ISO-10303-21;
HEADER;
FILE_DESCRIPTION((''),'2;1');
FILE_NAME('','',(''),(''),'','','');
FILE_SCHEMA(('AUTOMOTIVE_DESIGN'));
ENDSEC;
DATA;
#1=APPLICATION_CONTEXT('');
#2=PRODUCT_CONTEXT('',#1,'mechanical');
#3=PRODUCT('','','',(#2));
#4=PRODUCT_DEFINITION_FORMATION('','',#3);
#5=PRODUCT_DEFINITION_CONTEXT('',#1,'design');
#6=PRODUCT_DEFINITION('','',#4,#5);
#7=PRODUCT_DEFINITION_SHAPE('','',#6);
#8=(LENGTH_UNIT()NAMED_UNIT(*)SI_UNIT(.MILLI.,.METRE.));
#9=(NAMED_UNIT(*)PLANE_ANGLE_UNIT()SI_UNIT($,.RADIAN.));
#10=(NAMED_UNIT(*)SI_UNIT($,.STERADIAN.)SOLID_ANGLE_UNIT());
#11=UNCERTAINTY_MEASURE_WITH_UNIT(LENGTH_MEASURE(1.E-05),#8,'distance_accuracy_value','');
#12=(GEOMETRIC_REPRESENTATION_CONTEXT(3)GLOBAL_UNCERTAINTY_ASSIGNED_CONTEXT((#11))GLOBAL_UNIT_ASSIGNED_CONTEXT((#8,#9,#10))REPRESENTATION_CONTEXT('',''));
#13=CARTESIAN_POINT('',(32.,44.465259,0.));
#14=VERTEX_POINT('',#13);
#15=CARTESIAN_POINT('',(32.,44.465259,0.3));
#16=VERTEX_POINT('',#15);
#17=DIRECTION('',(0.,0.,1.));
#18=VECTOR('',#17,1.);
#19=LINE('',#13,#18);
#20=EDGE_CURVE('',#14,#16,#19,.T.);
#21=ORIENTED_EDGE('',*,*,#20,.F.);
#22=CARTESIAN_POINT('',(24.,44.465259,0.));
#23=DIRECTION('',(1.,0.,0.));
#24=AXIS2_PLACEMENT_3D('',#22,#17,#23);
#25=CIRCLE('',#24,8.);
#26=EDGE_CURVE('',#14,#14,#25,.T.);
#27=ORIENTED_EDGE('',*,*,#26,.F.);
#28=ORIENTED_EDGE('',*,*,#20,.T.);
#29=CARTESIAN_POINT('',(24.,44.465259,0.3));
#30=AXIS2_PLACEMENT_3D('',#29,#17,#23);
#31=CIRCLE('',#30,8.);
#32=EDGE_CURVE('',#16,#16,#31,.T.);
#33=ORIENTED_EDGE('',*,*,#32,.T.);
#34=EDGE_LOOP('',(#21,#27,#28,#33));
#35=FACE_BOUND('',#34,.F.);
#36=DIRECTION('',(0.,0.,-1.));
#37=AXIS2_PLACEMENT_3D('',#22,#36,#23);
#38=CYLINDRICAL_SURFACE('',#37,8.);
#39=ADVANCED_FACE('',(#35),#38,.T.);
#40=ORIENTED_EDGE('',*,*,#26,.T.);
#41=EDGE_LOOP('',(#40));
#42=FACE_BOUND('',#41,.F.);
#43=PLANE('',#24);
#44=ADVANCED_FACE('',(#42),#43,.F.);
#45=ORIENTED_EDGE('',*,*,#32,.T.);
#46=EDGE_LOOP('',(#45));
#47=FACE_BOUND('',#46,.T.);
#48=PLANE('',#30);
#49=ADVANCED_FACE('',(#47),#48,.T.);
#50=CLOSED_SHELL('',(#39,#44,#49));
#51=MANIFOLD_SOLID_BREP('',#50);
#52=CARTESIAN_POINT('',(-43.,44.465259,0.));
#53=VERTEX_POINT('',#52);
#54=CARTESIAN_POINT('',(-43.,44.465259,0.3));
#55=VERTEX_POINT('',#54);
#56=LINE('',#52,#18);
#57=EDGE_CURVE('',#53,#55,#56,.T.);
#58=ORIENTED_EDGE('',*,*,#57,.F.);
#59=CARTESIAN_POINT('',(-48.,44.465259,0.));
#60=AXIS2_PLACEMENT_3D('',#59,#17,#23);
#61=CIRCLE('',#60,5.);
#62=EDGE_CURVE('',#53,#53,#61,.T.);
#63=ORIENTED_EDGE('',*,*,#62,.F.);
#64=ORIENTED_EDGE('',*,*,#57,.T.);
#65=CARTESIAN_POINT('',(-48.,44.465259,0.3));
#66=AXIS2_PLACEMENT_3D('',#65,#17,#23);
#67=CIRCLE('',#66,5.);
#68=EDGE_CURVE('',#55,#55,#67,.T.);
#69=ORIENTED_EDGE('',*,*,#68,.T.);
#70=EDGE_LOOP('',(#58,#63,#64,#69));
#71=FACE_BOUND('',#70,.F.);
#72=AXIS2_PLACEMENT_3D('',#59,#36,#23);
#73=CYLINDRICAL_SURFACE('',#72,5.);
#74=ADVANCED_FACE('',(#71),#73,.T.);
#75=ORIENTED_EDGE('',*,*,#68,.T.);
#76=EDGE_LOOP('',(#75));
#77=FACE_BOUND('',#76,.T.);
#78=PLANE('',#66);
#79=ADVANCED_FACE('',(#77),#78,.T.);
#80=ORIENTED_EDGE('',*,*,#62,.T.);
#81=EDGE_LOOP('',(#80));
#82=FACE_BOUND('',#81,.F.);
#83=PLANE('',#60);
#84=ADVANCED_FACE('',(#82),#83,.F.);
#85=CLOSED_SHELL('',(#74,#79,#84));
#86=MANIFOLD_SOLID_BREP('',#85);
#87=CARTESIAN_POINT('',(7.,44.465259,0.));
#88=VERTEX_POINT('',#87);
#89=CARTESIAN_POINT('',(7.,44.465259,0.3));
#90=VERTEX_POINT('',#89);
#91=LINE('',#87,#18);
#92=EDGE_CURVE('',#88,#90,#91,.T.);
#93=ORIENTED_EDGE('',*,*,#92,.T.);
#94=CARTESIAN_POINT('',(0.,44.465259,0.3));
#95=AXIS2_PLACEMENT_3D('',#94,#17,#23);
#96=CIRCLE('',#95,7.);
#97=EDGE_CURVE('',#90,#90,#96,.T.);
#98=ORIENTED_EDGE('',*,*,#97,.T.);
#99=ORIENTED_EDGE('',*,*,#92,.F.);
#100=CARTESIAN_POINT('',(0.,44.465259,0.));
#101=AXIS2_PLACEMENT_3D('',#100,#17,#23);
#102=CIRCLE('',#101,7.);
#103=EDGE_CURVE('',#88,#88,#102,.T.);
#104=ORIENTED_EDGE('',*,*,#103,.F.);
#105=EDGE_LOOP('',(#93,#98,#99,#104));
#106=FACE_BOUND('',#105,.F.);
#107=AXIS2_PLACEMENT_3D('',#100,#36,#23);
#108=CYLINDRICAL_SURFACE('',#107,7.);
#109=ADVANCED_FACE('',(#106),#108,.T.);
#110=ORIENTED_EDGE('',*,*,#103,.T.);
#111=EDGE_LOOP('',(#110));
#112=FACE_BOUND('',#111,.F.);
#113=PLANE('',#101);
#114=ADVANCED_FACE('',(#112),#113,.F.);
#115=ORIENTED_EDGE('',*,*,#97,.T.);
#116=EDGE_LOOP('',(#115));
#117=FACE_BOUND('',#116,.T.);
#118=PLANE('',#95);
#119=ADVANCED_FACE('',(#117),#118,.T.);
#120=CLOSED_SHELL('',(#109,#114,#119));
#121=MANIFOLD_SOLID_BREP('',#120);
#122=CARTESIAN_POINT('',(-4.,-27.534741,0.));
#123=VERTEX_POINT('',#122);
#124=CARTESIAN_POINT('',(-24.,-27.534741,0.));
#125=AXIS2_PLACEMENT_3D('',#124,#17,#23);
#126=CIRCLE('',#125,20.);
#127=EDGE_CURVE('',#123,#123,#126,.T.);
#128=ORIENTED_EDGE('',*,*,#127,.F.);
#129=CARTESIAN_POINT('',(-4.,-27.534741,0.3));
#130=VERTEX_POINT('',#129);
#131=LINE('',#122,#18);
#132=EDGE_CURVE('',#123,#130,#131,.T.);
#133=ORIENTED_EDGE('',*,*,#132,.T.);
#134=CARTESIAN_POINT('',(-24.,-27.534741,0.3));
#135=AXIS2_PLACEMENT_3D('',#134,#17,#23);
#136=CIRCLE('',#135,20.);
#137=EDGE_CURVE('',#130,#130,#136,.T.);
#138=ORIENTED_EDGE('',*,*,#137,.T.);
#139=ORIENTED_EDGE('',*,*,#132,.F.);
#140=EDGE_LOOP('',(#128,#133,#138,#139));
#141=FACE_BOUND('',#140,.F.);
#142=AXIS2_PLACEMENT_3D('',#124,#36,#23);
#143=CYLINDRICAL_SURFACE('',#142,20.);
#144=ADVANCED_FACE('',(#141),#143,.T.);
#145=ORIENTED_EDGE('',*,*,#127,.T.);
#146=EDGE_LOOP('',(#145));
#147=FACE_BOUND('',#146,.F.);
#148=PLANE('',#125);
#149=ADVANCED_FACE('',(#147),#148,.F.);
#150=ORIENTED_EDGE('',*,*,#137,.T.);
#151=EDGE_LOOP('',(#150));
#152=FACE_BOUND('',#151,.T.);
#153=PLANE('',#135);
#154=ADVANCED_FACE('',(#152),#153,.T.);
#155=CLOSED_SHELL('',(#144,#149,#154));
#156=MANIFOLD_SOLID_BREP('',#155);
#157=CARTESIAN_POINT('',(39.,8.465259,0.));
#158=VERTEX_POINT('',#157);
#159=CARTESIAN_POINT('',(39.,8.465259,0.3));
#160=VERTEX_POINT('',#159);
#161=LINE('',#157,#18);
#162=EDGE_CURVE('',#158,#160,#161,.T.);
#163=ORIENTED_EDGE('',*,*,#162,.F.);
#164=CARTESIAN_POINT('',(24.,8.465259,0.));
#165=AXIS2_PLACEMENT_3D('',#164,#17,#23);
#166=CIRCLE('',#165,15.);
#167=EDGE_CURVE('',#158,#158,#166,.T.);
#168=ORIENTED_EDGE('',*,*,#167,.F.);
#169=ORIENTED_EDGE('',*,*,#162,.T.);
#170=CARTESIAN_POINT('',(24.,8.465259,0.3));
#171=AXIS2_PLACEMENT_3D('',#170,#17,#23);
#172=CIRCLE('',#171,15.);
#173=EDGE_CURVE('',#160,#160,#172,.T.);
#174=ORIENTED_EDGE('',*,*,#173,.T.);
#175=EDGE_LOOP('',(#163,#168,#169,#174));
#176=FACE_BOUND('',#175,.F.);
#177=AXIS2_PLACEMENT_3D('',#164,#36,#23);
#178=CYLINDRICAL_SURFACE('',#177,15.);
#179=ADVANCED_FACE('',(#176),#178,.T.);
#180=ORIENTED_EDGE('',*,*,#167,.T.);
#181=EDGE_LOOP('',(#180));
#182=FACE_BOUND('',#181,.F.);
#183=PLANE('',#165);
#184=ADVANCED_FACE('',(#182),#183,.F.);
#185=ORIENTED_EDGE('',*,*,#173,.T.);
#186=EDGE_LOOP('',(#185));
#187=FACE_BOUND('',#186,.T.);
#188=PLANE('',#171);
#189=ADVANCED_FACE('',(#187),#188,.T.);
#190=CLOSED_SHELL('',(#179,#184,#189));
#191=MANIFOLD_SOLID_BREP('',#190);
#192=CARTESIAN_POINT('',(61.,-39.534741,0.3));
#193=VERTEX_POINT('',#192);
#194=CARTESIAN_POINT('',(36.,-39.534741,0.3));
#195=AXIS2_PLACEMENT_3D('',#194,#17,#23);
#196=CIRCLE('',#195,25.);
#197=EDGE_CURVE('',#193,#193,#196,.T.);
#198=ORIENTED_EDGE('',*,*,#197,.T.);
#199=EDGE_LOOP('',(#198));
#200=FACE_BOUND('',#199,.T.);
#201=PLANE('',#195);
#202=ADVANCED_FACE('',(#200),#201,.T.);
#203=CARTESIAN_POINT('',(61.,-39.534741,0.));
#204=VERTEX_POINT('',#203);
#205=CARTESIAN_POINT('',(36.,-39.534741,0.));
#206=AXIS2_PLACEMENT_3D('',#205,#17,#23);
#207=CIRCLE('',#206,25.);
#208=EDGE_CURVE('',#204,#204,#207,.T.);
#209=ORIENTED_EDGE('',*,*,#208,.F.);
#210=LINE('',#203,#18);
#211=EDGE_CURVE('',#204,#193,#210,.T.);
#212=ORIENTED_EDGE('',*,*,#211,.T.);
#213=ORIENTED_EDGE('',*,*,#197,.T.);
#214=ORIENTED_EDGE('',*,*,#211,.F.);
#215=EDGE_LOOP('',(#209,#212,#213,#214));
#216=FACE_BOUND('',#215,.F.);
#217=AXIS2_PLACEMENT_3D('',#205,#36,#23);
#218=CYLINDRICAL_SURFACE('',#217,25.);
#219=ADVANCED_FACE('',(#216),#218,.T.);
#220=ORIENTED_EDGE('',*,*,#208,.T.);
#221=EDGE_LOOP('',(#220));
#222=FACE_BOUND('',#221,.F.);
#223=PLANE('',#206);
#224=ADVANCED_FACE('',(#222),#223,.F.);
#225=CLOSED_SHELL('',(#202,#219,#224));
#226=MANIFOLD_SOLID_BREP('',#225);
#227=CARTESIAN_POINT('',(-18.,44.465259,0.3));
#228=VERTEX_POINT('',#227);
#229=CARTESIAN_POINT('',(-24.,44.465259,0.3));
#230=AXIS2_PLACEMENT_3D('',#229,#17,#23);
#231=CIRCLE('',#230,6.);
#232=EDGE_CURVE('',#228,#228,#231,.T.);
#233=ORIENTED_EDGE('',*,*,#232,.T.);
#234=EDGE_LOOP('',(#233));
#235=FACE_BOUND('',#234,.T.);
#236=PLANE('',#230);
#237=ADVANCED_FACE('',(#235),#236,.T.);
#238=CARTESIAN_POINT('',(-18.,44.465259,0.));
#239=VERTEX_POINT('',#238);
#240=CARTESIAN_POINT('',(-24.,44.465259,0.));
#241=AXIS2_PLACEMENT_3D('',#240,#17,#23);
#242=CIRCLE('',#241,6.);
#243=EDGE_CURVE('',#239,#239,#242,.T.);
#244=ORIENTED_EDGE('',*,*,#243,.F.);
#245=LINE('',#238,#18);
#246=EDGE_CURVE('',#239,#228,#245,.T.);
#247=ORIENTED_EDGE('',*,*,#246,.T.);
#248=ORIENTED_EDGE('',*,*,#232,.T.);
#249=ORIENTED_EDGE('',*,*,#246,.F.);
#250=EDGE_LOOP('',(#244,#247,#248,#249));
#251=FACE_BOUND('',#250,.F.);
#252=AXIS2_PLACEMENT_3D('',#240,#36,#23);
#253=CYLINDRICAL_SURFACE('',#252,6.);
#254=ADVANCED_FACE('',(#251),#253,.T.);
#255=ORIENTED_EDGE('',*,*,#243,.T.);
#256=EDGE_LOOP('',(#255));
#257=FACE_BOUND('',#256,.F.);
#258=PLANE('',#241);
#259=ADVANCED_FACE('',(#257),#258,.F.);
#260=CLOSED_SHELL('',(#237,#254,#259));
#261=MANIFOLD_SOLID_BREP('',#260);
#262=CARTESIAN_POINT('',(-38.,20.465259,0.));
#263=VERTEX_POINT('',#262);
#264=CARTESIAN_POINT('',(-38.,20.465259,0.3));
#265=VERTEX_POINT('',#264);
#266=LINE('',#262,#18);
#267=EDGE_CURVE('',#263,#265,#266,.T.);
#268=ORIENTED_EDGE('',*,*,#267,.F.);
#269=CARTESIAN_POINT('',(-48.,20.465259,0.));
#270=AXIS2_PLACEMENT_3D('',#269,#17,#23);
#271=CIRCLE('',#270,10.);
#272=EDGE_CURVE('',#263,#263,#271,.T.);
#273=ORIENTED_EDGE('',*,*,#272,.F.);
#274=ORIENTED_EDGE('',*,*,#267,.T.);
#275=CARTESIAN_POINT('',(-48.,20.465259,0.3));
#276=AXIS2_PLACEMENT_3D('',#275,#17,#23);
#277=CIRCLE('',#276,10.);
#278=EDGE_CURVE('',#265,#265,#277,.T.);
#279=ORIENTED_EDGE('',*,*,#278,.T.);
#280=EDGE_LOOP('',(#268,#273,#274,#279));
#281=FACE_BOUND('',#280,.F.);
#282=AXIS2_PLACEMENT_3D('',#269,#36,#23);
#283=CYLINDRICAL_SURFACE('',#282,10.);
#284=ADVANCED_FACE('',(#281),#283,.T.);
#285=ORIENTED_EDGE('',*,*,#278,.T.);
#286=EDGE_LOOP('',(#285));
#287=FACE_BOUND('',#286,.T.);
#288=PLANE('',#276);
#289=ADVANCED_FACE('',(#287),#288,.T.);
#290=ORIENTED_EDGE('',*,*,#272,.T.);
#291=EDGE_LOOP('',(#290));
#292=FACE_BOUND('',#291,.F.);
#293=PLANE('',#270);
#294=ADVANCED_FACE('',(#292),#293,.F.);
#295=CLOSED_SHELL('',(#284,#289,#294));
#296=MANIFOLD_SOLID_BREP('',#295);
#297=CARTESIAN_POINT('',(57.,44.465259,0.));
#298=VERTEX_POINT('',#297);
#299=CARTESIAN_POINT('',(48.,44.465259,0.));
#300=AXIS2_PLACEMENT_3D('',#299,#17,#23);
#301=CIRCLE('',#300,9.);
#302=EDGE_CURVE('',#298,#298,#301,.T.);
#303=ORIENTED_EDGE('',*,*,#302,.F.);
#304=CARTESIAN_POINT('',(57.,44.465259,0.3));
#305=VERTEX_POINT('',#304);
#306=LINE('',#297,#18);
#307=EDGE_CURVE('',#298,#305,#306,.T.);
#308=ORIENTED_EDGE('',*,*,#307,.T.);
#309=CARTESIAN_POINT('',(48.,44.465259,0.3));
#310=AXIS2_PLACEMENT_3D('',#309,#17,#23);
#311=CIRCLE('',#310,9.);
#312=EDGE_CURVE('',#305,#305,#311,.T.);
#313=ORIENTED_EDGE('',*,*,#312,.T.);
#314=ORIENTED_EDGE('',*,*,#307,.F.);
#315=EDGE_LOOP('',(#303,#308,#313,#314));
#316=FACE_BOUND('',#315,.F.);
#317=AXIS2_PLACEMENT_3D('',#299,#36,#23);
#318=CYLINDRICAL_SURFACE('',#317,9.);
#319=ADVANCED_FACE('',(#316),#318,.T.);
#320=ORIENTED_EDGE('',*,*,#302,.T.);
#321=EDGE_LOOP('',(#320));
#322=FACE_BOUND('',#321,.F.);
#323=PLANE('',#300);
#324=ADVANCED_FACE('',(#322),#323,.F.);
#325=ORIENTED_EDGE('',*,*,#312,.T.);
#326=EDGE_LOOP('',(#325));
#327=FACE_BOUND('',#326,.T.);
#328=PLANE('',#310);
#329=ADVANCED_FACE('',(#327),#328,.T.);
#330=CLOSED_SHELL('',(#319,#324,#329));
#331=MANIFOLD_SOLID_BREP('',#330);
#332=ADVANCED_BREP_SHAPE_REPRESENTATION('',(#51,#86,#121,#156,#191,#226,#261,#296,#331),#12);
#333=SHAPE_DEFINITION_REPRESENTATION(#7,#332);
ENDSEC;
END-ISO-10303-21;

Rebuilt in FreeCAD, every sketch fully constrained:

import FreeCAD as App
import Part
import Sketcher
Q = App.Units.Quantity

doc = App.newDocument("Part")
body = doc.addObject("PartDesign::Body", "Body")
body.AllowCompound = True

sketch1 = body.newObject("Sketcher::SketchObject", "Sketch")
sketch1.AttachmentSupport = (doc.getObject("XY_Plane"), [""])
sketch1.MapMode = "FlatFace"
sketch1.addGeometry([
    Part.Circle(App.Vector(-48, 44, 0), App.Vector(0, 0, 1), 5),
    Part.Circle(App.Vector(-48, 20, 0), App.Vector(0, 0, 1), 10),
    Part.Circle(App.Vector(-24, 44, 0), App.Vector(0, 0, 1), 6),
    Part.Circle(App.Vector(0, 44, 0), App.Vector(0, 0, 1), 7),
    Part.Circle(App.Vector(24, 44, 0), App.Vector(0, 0, 1), 8),
    Part.Circle(App.Vector(48, 44, 0), App.Vector(0, 0, 1), 9),
    Part.Circle(App.Vector(24, 8, 0), App.Vector(0, 0, 1), 15),
    Part.Circle(App.Vector(-24, -28, 0), App.Vector(0, 0, 1), 20),
    Part.Circle(App.Vector(36, -40, 0), App.Vector(0, 0, 1), 25),
], False)
sketch1.addConstraint([
    Sketcher.Constraint("Symmetric", 2, 3, 4, 3, -2),
    Sketcher.Constraint("Symmetric", 0, 3, 5, 3, -2),
    Sketcher.Constraint("PointOnObject", 3, 3, -2),
    Sketcher.Constraint("Horizontal", 0, 3, 2, 3),
    Sketcher.Constraint("Horizontal", 2, 3, 3, 3),
    Sketcher.Constraint("Vertical", 0, 3, 1, 3),
    Sketcher.Constraint("Vertical", 4, 3, 6, 3),
    Sketcher.Constraint("Vertical", 2, 3, 7, 3),
    Sketcher.Constraint("Diameter", 0, Q("10 mm")),
    Sketcher.Constraint("Diameter", 1, Q("20 mm")),
    Sketcher.Constraint("Diameter", 2, Q("12 mm")),
    Sketcher.Constraint("Diameter", 3, Q("14 mm")),
    Sketcher.Constraint("Diameter", 4, Q("16 mm")),
    Sketcher.Constraint("Diameter", 5, Q("18 mm")),
    Sketcher.Constraint("Diameter", 6, Q("30 mm")),
    Sketcher.Constraint("Diameter", 7, Q("40 mm")),
    Sketcher.Constraint("Diameter", 8, Q("50 mm")),
    Sketcher.Constraint("DistanceX", 0, 3, -1, 1, Q("48 mm")),
    Sketcher.Constraint("DistanceX", 2, 3, -1, 1, Q("24 mm")),
    Sketcher.Constraint("DistanceX", -1, 1, 8, 3, Q("36 mm")),
    Sketcher.Constraint("DistanceY", 1, 3, 0, 3, Q("24 mm")),
    Sketcher.Constraint("DistanceY", 6, 3, 4, 3, Q("36 mm")),
    Sketcher.Constraint("DistanceY", 7, 3, 1, 3, Q("48 mm")),
    Sketcher.Constraint("DistanceY", 8, 3, 6, 3, Q("48 mm")),
    Sketcher.Constraint("DistanceY", -1, 1, 0, 3, Q("44.465259 mm")),
])
pad1 = body.newObject("PartDesign::Pad", "Pad")
pad1.Profile = sketch1
pad1.Length = 0.3

doc.recompute()
